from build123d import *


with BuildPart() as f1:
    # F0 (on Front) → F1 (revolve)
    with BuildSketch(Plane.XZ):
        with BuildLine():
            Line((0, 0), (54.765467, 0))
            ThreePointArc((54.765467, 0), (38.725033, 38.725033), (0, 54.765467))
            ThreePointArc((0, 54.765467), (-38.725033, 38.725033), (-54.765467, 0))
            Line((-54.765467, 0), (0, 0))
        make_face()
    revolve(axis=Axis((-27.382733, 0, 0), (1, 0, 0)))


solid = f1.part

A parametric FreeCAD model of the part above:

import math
import FreeCAD as App
import Part
import Sketcher

V = App.Vector
Q = App.Units.Quantity

doc = App.newDocument("Part")
body = doc.addObject("PartDesign::Body", "Body")

# Sketch on XZ plane
sketch1 = body.newObject("Sketcher::SketchObject", "Sketch")
sketch1.AttachmentSupport = (doc.getObject("XZ_Plane"), [""])
sketch1.MapMode = "FlatFace"
sketch1.addGeometry([
    Part.ArcOfCircle(Part.Circle(V(0, 0, 0), V(0, 0, 1), 55), math.radians(0), math.radians(90)),
    Part.ArcOfCircle(Part.Circle(V(0, 0, 0), V(0, 0, 1), 55), math.radians(90), math.radians(180)),
    Part.LineSegment(V(-55, 0, 0), V(55, 0, 0)),
], False)
sketch1.addConstraint([
    Sketcher.Constraint("Tangent", 0, 2, 1, 1),
    Sketcher.Constraint("Coincident", 1, 2, 2, 1),
    Sketcher.Constraint("Coincident", 2, 2, 0, 1),
    Sketcher.Constraint("Horizontal", 2),
    Sketcher.Constraint("Coincident", 0, 3, -1, 1),
    Sketcher.Constraint("Equal", 0, 1),
    Sketcher.Constraint("PointOnObject", 0, 2, -2),
    Sketcher.Constraint("PointOnObject", 1, 2, -1),
    Sketcher.Constraint("Radius", 0, Q("54.765467 mm")),
])
revolution = body.newObject("PartDesign::Revolution", "Revolution")
revolution.Profile = sketch1
revolution.ReferenceAxis = (sketch1, ["H_Axis"])
revolution.Angle = 360

doc.recompute()
